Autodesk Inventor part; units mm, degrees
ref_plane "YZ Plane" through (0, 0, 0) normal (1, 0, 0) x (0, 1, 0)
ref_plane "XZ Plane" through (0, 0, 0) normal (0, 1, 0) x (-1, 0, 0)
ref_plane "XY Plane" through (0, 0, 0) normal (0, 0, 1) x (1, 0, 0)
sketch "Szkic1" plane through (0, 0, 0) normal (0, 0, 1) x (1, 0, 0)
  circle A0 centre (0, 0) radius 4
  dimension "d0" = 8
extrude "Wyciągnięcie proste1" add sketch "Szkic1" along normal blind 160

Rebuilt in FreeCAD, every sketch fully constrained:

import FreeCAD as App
import Part
import Sketcher

V = App.Vector
Q = App.Units.Quantity

doc = App.newDocument("Part")
body = doc.addObject("PartDesign::Body", "Body")

sketch1 = body.newObject("Sketcher::SketchObject", "Sketch")
sketch1.AttachmentSupport = (doc.getObject("XY_Plane"), [""])
sketch1.MapMode = "FlatFace"
sketch1.addGeometry(Part.Circle(V(0, 0, 0), V(0, 0, 1), 4), False)
sketch1.addConstraint([
    Sketcher.Constraint("Coincident", 0, 3, -1, 1),
    Sketcher.Constraint("Diameter", 0, Q("8 mm")),
])
pad1 = body.newObject("PartDesign::Pad", "Pad")
pad1.Profile = sketch1
pad1.Length = 160

doc.recompute()
